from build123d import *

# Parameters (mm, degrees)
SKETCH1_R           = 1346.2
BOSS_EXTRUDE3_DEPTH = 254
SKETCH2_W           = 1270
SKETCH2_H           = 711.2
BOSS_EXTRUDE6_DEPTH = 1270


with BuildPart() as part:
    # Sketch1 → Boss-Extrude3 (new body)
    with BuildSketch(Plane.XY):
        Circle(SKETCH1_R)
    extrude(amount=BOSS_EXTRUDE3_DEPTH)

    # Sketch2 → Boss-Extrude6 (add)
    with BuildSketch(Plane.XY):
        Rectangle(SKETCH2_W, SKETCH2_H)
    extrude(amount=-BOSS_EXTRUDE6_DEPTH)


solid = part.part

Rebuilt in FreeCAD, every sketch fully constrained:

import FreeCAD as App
import Part
import Sketcher
from FreeCAD import Vector
Q = App.Units.Quantity

doc = App.newDocument("Part")
body = doc.addObject("PartDesign::Body", "Body")

sketch1 = body.newObject("Sketcher::SketchObject", "Sketch")
sketch1.AttachmentSupport = (doc.getObject("XY_Plane"), [""])
sketch1.MapMode = "FlatFace"
sketch1.addGeometry(Part.Circle(Vector(0, 0, 0), Vector(0, 0, 1), 1346), False)
sketch1.addConstraint([
    Sketcher.Constraint("Coincident", 0, 3, -1, 1),
    Sketcher.Constraint("Diameter", 0, Q("106 in")),
])
pad1 = body.newObject("PartDesign::Pad", "Pad")
pad1.Profile = sketch1
pad1.Length = Q("10 in")

sketch2 = body.newObject("Sketcher::SketchObject", "Sketch001")
sketch2.AttachmentSupport = (doc.getObject("XY_Plane"), [""])
sketch2.MapMode = "FlatFace"
sketch2.addGeometry([
    Part.LineSegment(Vector(-635, 356, 0), Vector(-635, -356, 0)),
    Part.LineSegment(Vector(-635, -356, 0), Vector(635, -356, 0)),
    Part.LineSegment(Vector(635, -356, 0), Vector(635, 356, 0)),
    Part.LineSegment(Vector(635, 356, 0), Vector(-635, 356, 0)),
], False)
sketch2.addConstraint([
    Sketcher.Constraint("Coincident", 0, 2, 1, 1),
    Sketcher.Constraint("Coincident", 1, 2, 2, 1),
    Sketcher.Constraint("Coincident", 2, 2, 3, 1),
    Sketcher.Constraint("Coincident", 3, 2, 0, 1),
    Sketcher.Constraint("Vertical", 0),
    Sketcher.Constraint("Horizontal", 1),
    Sketcher.Constraint("Vertical", 2),
    Sketcher.Constraint("Horizontal", 3),
    Sketcher.Constraint("Symmetric", 0, 2, 2, 2, -1, 1),
    Sketcher.Constraint("DistanceX", 1, 1, 1, 2, Q("50 in")),
    Sketcher.Constraint("DistanceY", 0, 2, 0, 1, Q("28 in")),
])
pad2 = body.newObject("PartDesign::Pad", "Pad001")
pad2.Profile = sketch2
pad2.Length = Q("50 in")
pad2.Reversed = True

doc.recompute()
